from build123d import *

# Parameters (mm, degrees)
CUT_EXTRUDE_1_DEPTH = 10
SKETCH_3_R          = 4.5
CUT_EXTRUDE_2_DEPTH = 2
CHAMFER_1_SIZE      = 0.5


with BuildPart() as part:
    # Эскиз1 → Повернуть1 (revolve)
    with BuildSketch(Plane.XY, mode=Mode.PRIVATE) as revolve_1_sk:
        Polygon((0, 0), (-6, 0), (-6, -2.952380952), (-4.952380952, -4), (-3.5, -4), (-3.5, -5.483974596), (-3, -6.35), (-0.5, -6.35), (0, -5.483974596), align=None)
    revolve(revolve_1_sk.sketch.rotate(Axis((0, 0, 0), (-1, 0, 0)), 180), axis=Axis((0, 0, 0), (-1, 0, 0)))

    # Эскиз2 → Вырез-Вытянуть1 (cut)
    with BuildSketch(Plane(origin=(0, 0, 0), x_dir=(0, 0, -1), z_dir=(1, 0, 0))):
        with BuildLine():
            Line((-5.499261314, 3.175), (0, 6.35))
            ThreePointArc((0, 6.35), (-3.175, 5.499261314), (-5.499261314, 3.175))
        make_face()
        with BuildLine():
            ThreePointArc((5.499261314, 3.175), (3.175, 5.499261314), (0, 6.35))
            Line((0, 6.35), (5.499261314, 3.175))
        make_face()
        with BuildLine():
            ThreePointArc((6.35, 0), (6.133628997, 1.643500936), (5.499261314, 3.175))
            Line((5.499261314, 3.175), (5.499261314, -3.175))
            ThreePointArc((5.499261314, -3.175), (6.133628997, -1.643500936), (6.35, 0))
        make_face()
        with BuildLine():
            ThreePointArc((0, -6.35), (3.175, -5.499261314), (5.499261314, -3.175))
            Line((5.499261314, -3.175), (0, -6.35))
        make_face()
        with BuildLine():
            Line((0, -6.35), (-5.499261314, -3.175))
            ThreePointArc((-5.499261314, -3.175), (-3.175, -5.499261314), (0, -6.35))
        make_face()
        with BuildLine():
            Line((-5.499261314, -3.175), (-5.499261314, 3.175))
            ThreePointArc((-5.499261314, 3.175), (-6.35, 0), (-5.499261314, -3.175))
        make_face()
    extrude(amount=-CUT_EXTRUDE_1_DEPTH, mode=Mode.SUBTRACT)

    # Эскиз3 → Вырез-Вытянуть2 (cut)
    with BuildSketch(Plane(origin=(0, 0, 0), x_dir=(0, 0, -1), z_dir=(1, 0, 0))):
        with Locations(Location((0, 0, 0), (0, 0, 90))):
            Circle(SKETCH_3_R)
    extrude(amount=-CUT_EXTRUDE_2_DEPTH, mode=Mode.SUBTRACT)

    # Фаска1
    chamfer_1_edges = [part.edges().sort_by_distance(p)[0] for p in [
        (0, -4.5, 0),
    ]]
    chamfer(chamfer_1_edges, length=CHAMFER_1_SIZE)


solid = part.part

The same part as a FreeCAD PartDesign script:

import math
import FreeCAD as App
import Part
import Sketcher

V = App.Vector
Q = App.Units.Quantity


def edges_at(feature, points):
    """Names of the edges that pass closest to the given points."""
    edges = feature.Shape.Edges
    near = lambda p: min(range(len(edges)), key=lambda i: edges[i].distToShape(Part.Vertex(*p))[0])
    return sorted({f"Edge{near(p) + 1}" for p in points})

doc = App.newDocument("Part")
body = doc.addObject("PartDesign::Body", "Body")

# Sketch on XY plane
sketch1 = body.newObject("Sketcher::SketchObject", "Sketch")
sketch1.AttachmentSupport = (doc.getObject("XY_Plane"), [""])
sketch1.MapMode = "FlatFace"
sketch1.addGeometry(Part.LineSegment(V(0, 0, 0), V(-6, 0, 0)), False)
sketch1.addGeometry(Part.LineSegment(V(-6, 0, 0), V(-6, -3, 0)), False)
sketch1.addGeometry(Part.LineSegment(V(-6, -3, 0), V(-5, -4, 0)), False)
sketch1.addGeometry(Part.LineSegment(V(-5, -4, 0), V(-3.5, -4, 0)), False)
sketch1.addGeometry(Part.LineSegment(V(-3.5, -4, 0), V(-3.5, -5.5, 0)), False)
sketch1.addGeometry(Part.LineSegment(V(-3.5, -5.5, 0), V(-3, -6.3, 0)), False)
sketch1.addGeometry(Part.LineSegment(V(-3, -6.3, 0), V(-0.5, -6.3, 0)), False)
sketch1.addGeometry(Part.LineSegment(V(-0.5, -6.3, 0), V(0, -5.5, 0)), False)
sketch1.addGeometry(Part.LineSegment(V(0, -5.5, 0), V(0, 0, 0)), False)
sketch1.addConstraint(Sketcher.Constraint("Coincident", 0, 2, 1, 1))
sketch1.addConstraint(Sketcher.Constraint("Coincident", 1, 2, 2, 1))
sketch1.addConstraint(Sketcher.Constraint("Coincident", 2, 2, 3, 1))
sketch1.addConstraint(Sketcher.Constraint("Coincident", 3, 2, 4, 1))
sketch1.addConstraint(Sketcher.Constraint("Coincident", 4, 2, 5, 1))
sketch1.addConstraint(Sketcher.Constraint("Coincident", 5, 2, 6, 1))
sketch1.addConstraint(Sketcher.Constraint("Coincident", 6, 2, 7, 1))
sketch1.addConstraint(Sketcher.Constraint("Coincident", 7, 2, 8, 1))
sketch1.addConstraint(Sketcher.Constraint("Coincident", 8, 2, 0, 1))
sketch1.addConstraint(Sketcher.Constraint("Horizontal", 0))
sketch1.addConstraint(Sketcher.Constraint("Vertical", 1))
sketch1.addConstraint(Sketcher.Constraint("Horizontal", 3))
sketch1.addConstraint(Sketcher.Constraint("Vertical", 4))
sketch1.addConstraint(Sketcher.Constraint("Horizontal", 6))
sketch1.addConstraint(Sketcher.Constraint("Vertical", 8))
sketch1.addConstraint(Sketcher.Constraint("Coincident", 8, 2, -1, 1))
sketch1.addConstraint(Sketcher.Constraint("Horizontal", 4, 2, 7, 2))
sketch1.addConstraint(Sketcher.Constraint("Equal", 5, 7))
sketch1.addConstraint(Sketcher.Constraint("DistanceX", 0, 2, 0, 1, 6.0))
sketch1.addConstraint(Sketcher.Constraint("Angle", 2, Q("-45 deg")))
sketch1.addConstraint(Sketcher.Constraint("Angle", 5, Q("-60 deg")))
sketch1.addConstraint(Sketcher.Constraint("Distance", 5, 1.0))
sketch1.addConstraint(Sketcher.Constraint("DistanceX", 6, 1, 6, 2, 2.5))
sketch1.addConstraint(Sketcher.Constraint("DistanceY", 2, 2, -1, 1, 4.0))
sketch1.addConstraint(Sketcher.Constraint("DistanceY", 5, 2, -1, 1, 6.35))
sketch1.addConstraint(Sketcher.Constraint("DistanceX", 3, 1, 3, 2, 1.452381))
revolution = body.newObject("PartDesign::Revolution", "Revolution")
revolution.Profile = sketch1
revolution.ReferenceAxis = (sketch1, ["H_Axis"])
revolution.Angle = 360

# Sketch on YZ plane
sketch2 = body.newObject("Sketcher::SketchObject", "Sketch001")
sketch2.AttachmentSupport = (doc.getObject("YZ_Plane"), [""])
sketch2.MapMode = "FlatFace"
sketch2.addGeometry(Part.LineSegment(V(3.2, 5.5, 0), V(6.3, 0, 0)), False)
sketch2.addGeometry(Part.ArcOfCircle(Part.Circle(V(0, 0, 0), V(0, 0, 1), 6.3), math.radians(0), math.radians(60)), False)
sketch2.addGeometry(Part.ArcOfCircle(Part.Circle(V(0, 0, 0), V(0, 0, 1), 6.3), math.radians(-60), math.radians(0)), False)
sketch2.addGeometry(Part.LineSegment(V(6.3, 0, 0), V(3.2, -5.5, 0)), False)
sketch2.addGeometry(Part.ArcOfCircle(Part.Circle(V(0, 0, 0), V(0, 0, 1), 6.4), math.radians(-90), math.radians(-60)), False)
sketch2.addGeometry(Part.LineSegment(V(3.2, -5.5, 0), V(-3.2, -5.5, 0)), False)
sketch2.addGeometry(Part.ArcOfCircle(Part.Circle(V(0, 0, 0), V(0, 0, 1), 6.4), math.radians(-120), math.radians(-90)), False)
sketch2.addGeometry(Part.ArcOfCircle(Part.Circle(V(0, 0, 0), V(0, 0, 1), 6.3), math.radians(180), math.radians(240)), False)
sketch2.addGeometry(Part.LineSegment(V(-3.2, -5.5, 0), V(-6.3, 0, 0)), False)
sketch2.addGeometry(Part.LineSegment(V(-6.3, 0, 0), V(-3.2, 5.5, 0)), False)
sketch2.addGeometry(Part.ArcOfCircle(Part.Circle(V(0, 0, 0), V(0, 0, 1), 6.3), math.radians(120), math.radians(180)), False)
sketch2.addGeometry(Part.LineSegment(V(-3.2, 5.5, 0), V(3.2, 5.5, 0)), False)
sketch2.addGeometry(Part.ArcOfCircle(Part.Circle(V(0, 0, 0), V(0, 0, 1), 6.3), math.radians(60), math.radians(120)), False)
sketch2.addConstraint(Sketcher.Constraint("Coincident", 0, 1, 1, 2))
sketch2.addConstraint(Sketcher.Constraint("Coincident", 1, 1, 0, 2))
sketch2.addConstraint(Sketcher.Constraint("Coincident", 2, 1, 3, 2))
sketch2.addConstraint(Sketcher.Constraint("Coincident", 3, 1, 2, 2))
sketch2.addConstraint(Sketcher.Constraint("Coincident", 4, 2, 5, 1))
sketch2.addConstraint(Sketcher.Constraint("Coincident", 5, 2, 6, 1))
sketch2.addConstraint(Sketcher.Constraint("Tangent", 6, 2, 4, 1))
sketch2.addConstraint(Sketcher.Constraint("Coincident", 7, 1, 8, 2))
sketch2.addConstraint(Sketcher.Constraint("Coincident", 8, 1, 7, 2))
sketch2.addConstraint(Sketcher.Constraint("Coincident", 9, 1, 10, 2))
sketch2.addConstraint(Sketcher.Constraint("Coincident", 10, 1, 9, 2))
sketch2.addConstraint(Sketcher.Constraint("Coincident", 11, 1, 12, 2))
sketch2.addConstraint(Sketcher.Constraint("Coincident", 12, 1, 11, 2))
sketch2.addConstraint(Sketcher.Constraint("Horizontal", 5))
sketch2.addConstraint(Sketcher.Constraint("Horizontal", 11))
sketch2.addConstraint(Sketcher.Constraint("Coincident", 1, 3, -1, 1))
sketch2.addConstraint(Sketcher.Constraint("Coincident", 2, 3, -1, 1))
sketch2.addConstraint(Sketcher.Constraint("Coincident", 4, 3, -1, 1))
sketch2.addConstraint(Sketcher.Constraint("Coincident", 7, 3, -1, 1))
sketch2.addConstraint(Sketcher.Constraint("Coincident", 10, 3, -1, 1))
sketch2.addConstraint(Sketcher.Constraint("Coincident", 12, 3, -1, 1))
sketch2.addConstraint(Sketcher.Constraint("Coincident", 3, 1, 1, 1))
sketch2.addConstraint(Sketcher.Constraint("Coincident", 4, 2, 2, 1))
sketch2.addConstraint(Sketcher.Constraint("Coincident", 8, 1, 5, 2))
sketch2.addConstraint(Sketcher.Constraint("Coincident", 9, 1, 7, 1))
sketch2.addConstraint(Sketcher.Constraint("Coincident", 11, 1, 10, 1))
sketch2.addConstraint(Sketcher.Constraint("Coincident", 12, 1, 0, 1))
sketch2.addConstraint(Sketcher.Constraint("PointOnObject", 1, 1, -1))
sketch2.addConstraint(Sketcher.Constraint("PointOnObject", 6, 2, -2))
sketch2.addConstraint(Sketcher.Constraint("PointOnObject", 7, 1, -1))
sketch2.addConstraint(Sketcher.Constraint("Parallel", 0, 8))
sketch2.addConstraint(Sketcher.Constraint("Angle", 0, Q("-60 deg")))
sketch2.addConstraint(Sketcher.Constraint("Radius", 1, 6.35))
pocket1 = body.newObject("PartDesign::Pocket", "Pocket")
pocket1.Profile = sketch2
pocket1.Length = 10

# Sketch on YZ plane
sketch3 = body.newObject("Sketcher::SketchObject", "Sketch002")
sketch3.AttachmentSupport = (doc.getObject("YZ_Plane"), [""])
sketch3.MapMode = "FlatFace"
sketch3.addGeometry(Part.Circle(V(0, 0, 0), V(0, 0, 1), 4.5), False)
sketch3.addConstraint(Sketcher.Constraint("Coincident", 0, 3, -1, 1))
sketch3.addConstraint(Sketcher.Constraint("Diameter", 0, 9.0))
pocket2 = body.newObject("PartDesign::Pocket", "Pocket001")
pocket2.Profile = sketch3
pocket2.Length = 2
doc.recompute()

chamfer = body.newObject("PartDesign::Chamfer", "Chamfer")
chamfer.Base = (pocket2, edges_at(pocket2, [(0, -4.5, 0)]))
chamfer.Size = 0.5

doc.recompute()
